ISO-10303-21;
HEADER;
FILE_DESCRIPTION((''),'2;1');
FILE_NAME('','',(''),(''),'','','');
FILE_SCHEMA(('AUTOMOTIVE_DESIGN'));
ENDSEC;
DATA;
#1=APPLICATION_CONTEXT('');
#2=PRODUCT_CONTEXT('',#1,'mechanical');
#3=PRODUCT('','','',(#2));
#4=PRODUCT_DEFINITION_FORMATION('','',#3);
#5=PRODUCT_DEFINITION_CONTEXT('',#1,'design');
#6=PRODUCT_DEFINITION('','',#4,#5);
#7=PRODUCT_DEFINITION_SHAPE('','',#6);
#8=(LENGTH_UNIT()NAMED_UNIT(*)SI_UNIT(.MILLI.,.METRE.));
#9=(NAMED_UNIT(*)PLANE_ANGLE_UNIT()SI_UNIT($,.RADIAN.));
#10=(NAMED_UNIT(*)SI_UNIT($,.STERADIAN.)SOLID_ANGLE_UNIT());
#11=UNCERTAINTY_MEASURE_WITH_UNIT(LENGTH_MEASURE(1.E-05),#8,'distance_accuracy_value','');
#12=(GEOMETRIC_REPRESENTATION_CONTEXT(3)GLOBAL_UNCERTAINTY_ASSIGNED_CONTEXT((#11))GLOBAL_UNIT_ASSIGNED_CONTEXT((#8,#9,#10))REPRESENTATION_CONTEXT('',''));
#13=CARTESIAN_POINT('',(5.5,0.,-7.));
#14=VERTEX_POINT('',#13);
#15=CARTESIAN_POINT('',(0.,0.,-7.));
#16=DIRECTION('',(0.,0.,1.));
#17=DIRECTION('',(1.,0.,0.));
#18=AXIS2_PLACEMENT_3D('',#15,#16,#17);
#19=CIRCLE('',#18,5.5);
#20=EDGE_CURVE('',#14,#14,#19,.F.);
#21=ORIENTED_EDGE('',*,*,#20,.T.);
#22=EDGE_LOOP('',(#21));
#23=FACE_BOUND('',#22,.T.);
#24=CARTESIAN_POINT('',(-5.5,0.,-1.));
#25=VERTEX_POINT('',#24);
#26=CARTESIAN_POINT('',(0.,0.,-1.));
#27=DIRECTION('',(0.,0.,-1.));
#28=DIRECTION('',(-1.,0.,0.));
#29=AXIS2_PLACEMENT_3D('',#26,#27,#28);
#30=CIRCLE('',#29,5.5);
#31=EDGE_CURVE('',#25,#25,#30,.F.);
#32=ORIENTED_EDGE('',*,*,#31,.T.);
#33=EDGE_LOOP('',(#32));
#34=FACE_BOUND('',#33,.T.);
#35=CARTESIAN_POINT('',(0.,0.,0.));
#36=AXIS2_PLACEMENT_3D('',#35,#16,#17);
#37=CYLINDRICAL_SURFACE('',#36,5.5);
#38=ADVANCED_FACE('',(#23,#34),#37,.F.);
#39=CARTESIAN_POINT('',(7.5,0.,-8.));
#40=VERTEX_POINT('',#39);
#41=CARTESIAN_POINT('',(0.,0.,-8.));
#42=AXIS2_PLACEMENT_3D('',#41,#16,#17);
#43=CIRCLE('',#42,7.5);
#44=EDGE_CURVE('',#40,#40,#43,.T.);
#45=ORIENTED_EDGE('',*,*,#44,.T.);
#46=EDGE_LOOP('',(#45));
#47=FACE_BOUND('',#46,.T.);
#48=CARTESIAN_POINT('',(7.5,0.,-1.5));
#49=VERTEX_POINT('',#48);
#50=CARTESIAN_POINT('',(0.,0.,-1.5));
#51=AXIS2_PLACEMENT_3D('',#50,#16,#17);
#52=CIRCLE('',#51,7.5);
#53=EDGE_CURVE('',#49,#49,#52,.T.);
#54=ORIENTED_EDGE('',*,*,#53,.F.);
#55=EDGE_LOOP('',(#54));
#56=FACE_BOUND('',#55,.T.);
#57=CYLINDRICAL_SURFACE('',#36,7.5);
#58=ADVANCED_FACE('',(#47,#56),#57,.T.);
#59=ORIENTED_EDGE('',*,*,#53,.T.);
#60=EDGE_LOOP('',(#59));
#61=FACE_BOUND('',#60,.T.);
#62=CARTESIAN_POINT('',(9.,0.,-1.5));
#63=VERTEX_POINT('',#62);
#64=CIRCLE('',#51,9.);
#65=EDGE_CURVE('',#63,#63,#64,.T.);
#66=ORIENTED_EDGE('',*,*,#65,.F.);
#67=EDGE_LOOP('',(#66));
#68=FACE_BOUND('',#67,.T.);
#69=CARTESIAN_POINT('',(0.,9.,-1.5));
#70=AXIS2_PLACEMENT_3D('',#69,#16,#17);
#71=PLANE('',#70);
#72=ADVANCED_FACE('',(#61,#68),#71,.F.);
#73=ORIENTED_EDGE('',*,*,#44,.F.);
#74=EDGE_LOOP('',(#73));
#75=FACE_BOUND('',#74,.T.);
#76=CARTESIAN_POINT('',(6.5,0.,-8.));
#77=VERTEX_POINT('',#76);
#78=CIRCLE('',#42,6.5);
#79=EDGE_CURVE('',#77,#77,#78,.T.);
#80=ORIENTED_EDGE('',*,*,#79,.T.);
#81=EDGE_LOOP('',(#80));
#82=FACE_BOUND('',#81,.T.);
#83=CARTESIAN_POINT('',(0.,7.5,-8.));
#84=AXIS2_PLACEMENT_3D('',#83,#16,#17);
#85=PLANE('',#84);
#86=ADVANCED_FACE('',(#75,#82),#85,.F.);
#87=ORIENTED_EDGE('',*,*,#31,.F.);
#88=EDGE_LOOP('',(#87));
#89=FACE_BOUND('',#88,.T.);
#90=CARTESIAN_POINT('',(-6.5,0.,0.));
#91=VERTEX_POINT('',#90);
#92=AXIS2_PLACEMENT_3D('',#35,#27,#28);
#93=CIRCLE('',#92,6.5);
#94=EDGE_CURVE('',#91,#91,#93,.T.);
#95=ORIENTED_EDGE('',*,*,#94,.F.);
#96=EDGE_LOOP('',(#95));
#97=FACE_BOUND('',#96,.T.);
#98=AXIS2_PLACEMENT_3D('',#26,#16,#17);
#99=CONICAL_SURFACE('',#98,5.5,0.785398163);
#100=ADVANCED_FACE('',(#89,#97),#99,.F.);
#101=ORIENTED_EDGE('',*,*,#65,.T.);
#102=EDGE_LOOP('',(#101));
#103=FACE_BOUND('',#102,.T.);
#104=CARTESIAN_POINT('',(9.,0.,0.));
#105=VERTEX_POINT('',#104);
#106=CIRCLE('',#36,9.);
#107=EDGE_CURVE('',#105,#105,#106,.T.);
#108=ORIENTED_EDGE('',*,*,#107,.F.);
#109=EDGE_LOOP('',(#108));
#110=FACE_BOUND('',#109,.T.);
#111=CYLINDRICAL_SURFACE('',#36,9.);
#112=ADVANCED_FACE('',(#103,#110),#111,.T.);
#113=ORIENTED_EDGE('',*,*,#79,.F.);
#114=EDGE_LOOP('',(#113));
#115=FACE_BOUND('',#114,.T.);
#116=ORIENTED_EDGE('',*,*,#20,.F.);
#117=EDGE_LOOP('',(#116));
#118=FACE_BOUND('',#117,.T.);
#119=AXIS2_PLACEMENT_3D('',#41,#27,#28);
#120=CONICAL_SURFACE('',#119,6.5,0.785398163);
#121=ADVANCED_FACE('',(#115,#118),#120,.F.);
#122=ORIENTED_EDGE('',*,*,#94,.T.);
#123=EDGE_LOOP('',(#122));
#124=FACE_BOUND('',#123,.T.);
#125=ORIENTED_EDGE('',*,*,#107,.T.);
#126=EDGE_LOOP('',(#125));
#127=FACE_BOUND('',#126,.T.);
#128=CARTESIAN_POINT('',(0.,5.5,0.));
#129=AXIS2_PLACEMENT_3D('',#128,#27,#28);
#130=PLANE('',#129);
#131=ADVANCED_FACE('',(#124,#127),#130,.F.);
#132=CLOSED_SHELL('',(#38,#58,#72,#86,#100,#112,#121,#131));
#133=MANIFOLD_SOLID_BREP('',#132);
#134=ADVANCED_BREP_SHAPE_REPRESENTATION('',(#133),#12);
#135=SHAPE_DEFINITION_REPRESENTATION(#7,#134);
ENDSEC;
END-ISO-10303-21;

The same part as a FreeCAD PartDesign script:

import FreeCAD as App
import Part
import Sketcher


def edges_at(feature, points):
    """Names of the edges that pass closest to the given points."""
    edges = feature.Shape.Edges
    near = lambda p: min(range(len(edges)), key=lambda i: edges[i].distToShape(Part.Vertex(*p))[0])
    return sorted({f"Edge{near(p) + 1}" for p in points})


def add_polygon(sketch, points):
    """Adds a closed chain of lines whose ends are joined by coincident constraints."""
    first, n = sketch.GeometryCount, len(points)
    for a, b in zip(points, points[1:] + points[:1]):
        sketch.addGeometry(Part.LineSegment(App.Vector(*a, 0), App.Vector(*b, 0)), False)
    for i in range(n):
        sketch.addConstraint(Sketcher.Constraint("Coincident", first + i, 2, first + (i + 1) % n, 1))

doc = App.newDocument("Part")
body = doc.addObject("PartDesign::Body", "Body")

# Sketch on YZ plane
sketch1 = body.newObject("Sketcher::SketchObject", "Sketch")
sketch1.AttachmentSupport = (doc.getObject("YZ_Plane"), [""])
sketch1.MapMode = "FlatFace"
add_polygon(sketch1, [(5.5, 0), (5.5, -8), (7.5, -8), (7.5, -1.5), (9, -1.5), (9, 0)])  # lines 0-5
sketch1.addConstraint(Sketcher.Constraint("Vertical", 0))
sketch1.addConstraint(Sketcher.Constraint("Horizontal", 1))
sketch1.addConstraint(Sketcher.Constraint("Vertical", 2))
sketch1.addConstraint(Sketcher.Constraint("Horizontal", 3))
sketch1.addConstraint(Sketcher.Constraint("Vertical", 4))
sketch1.addConstraint(Sketcher.Constraint("Horizontal", 5))
sketch1.addConstraint(Sketcher.Constraint("PointOnObject", 4, 2, -1))
sketch1.addConstraint(Sketcher.Constraint("Equal", 3, 4))
sketch1.addConstraint(Sketcher.Constraint("DistanceX", 1, 1, 1, 2, 2.0))
sketch1.addConstraint(Sketcher.Constraint("DistanceY", 0, 2, 0, 1, 8.0))
sketch1.addConstraint(Sketcher.Constraint("DistanceX", 3, 1, 3, 2, 1.5))
sketch1.addConstraint(Sketcher.Constraint("DistanceX", -1, 1, 3, 2, 9.0))
revolution = body.newObject("PartDesign::Revolution", "Revolution")
revolution.Profile = sketch1
revolution.ReferenceAxis = (sketch1, ["V_Axis"])
revolution.Angle = 360
doc.recompute()

chamfer = body.newObject("PartDesign::Chamfer", "Chamfer")
chamfer.Base = (revolution, edges_at(revolution, [(-5.5, 0, 0), (-5.5, 0, -8)]))
chamfer.Size = 1

doc.recompute()
